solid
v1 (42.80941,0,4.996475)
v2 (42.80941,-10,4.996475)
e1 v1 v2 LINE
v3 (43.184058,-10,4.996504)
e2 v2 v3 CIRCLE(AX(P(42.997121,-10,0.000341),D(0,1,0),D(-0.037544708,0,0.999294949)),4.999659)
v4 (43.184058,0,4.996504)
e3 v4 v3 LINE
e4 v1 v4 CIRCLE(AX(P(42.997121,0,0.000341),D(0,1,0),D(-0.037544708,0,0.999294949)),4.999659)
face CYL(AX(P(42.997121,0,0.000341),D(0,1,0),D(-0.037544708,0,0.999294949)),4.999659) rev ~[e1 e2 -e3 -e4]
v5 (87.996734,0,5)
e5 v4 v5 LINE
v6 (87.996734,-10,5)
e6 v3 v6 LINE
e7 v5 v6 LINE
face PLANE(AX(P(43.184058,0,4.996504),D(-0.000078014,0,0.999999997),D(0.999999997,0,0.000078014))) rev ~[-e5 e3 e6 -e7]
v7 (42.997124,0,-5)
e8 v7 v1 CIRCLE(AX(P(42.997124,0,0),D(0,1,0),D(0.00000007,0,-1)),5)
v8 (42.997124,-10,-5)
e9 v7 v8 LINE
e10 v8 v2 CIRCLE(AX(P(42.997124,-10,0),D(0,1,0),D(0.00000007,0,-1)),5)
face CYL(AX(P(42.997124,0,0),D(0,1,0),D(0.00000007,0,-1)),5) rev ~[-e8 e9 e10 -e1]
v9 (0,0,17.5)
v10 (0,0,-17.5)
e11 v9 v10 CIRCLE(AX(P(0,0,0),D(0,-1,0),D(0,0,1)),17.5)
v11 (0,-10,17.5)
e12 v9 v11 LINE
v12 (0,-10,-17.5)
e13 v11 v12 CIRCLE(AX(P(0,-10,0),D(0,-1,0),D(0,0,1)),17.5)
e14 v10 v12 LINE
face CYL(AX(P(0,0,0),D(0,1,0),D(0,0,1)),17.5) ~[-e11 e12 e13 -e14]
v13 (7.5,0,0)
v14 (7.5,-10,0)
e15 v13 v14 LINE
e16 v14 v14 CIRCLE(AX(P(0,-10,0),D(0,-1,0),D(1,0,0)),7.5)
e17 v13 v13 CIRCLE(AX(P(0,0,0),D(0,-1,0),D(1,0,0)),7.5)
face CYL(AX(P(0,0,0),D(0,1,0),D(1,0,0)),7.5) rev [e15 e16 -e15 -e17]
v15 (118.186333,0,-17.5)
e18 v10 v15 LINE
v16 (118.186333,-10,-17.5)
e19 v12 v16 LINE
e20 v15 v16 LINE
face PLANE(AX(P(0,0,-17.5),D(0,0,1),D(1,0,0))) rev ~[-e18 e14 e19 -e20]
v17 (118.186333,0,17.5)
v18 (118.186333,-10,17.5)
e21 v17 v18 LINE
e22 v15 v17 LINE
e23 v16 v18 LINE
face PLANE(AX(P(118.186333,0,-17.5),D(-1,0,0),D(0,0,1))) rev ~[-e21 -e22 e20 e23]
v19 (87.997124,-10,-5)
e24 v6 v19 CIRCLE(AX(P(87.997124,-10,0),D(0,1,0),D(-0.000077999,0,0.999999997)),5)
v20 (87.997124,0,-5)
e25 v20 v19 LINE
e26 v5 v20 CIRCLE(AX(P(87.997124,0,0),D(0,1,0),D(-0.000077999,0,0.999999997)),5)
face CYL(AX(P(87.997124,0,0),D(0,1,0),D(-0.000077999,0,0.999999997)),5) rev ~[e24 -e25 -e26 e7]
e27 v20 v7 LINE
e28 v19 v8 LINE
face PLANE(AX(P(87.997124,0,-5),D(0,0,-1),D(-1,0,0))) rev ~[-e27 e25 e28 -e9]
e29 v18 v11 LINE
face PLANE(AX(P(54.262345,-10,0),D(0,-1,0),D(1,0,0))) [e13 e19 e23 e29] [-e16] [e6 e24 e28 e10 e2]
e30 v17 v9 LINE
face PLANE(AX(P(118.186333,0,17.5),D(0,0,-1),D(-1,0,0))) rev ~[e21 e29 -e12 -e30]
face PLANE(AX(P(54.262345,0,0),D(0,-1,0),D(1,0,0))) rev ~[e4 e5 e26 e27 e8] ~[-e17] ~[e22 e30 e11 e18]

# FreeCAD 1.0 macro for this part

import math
import FreeCAD as App
import Part
import Sketcher

V = App.Vector
Q = App.Units.Quantity

doc = App.newDocument("Part")
params = doc.addObject("Spreadsheet::Sheet", "Params")
for row, (alias, value) in enumerate([
    ("sketch1_diameter", "15 mm"),
    ("sketch1_radius", "5 mm"),
    ("sketch1_radius2", "17.5 mm"),
    ("sketch1_width", "45 mm"),
    ("pad1_length", "10 mm"),
], start=1):
    params.set(f"A{row}", alias)
    params.set(f"B{row}", "=" + value)
    params.setAlias(f"B{row}", alias)

body = doc.addObject("PartDesign::Body", "Body")

# Sketch on XZ plane
sketch1 = body.newObject("Sketcher::SketchObject", "Sketch")
sketch1.AttachmentSupport = (doc.getObject("XZ_Plane"), [""])
sketch1.MapMode = "FlatFace"
sketch1.addGeometry(Part.LineSegment(V(118.186333, 17.5, 0), V(0, 17.5, 0)), False)
sketch1.addGeometry(Part.ArcOfCircle(Part.Circle(V(0, 0, 0), V(0, 0, 1), 17.5), math.radians(90), math.radians(270)), False)
sketch1.addGeometry(Part.LineSegment(V(0, -17.5, 0), V(118.186333, -17.5, 0)), False)
sketch1.addGeometry(Part.LineSegment(V(118.186333, -17.5, 0), V(118.186333, 17.5, 0)), False)
sketch1.addGeometry(Part.Circle(V(0, 0, 0), V(0, 0, 1), 7.5), False)
sketch1.addGeometry(Part.ArcOfCircle(Part.Circle(V(42.997124, 0, 0), V(0, 0, 1), 5), math.radians(92.151546), math.radians(270.000004)), False)
sketch1.addGeometry(Part.ArcOfCircle(Part.Circle(V(42.997121, 0.000341, 0), V(0, 0, 1), 4.999659), math.radians(87.857211), math.radians(92.151659)), False)
sketch1.addGeometry(Part.LineSegment(V(43.184058, 4.996504, 0), V(87.996734, 5, 0)), False)
sketch1.addGeometry(Part.ArcOfCircle(Part.Circle(V(87.997124, 0, 0), V(0, 0, 1), 5), math.radians(-90), math.radians(90.004469)), False)
sketch1.addGeometry(Part.LineSegment(V(87.997124, -5, 0), V(42.997124, -5, 0)), False)
sketch1.addConstraint(Sketcher.Constraint("Coincident", 0, 2, 1, 1))
sketch1.addConstraint(Sketcher.Constraint("Coincident", 1, 2, 2, 1))
sketch1.addConstraint(Sketcher.Constraint("Coincident", 2, 2, 3, 1))
sketch1.addConstraint(Sketcher.Constraint("Coincident", 3, 2, 0, 1))
sketch1.addConstraint(Sketcher.Constraint("Coincident", 5, 1, 6, 2))
sketch1.addConstraint(Sketcher.Constraint("Coincident", 6, 1, 7, 1))
sketch1.addConstraint(Sketcher.Constraint("Coincident", 7, 2, 8, 2))
sketch1.addConstraint(Sketcher.Constraint("Coincident", 8, 1, 9, 1))
sketch1.addConstraint(Sketcher.Constraint("Coincident", 9, 2, 5, 2))
sketch1.addConstraint(Sketcher.Constraint("Horizontal", 0))
sketch1.addConstraint(Sketcher.Constraint("Horizontal", 2))
sketch1.addConstraint(Sketcher.Constraint("Vertical", 3))
sketch1.addConstraint(Sketcher.Constraint("Horizontal", 9))
sketch1.addConstraint(Sketcher.Constraint("Coincident", 1, 3, -1, 1))
sketch1.addConstraint(Sketcher.Constraint("Coincident", 4, 3, -1, 1))
sketch1.addConstraint(Sketcher.Constraint("PointOnObject", 5, 3, -1))
sketch1.addConstraint(Sketcher.Constraint("PointOnObject", 8, 3, -1))
sketch1.addConstraint(Sketcher.Constraint("PointOnObject", 0, 2, -2))
sketch1.addConstraint(Sketcher.Constraint("PointOnObject", 1, 2, -2))
sketch1.addConstraint(Sketcher.Constraint("Diameter", 4, Q("15 mm")))
sketch1.addConstraint(Sketcher.Constraint("Radius", 5, Q("5 mm")))
sketch1.addConstraint(Sketcher.Constraint("Radius", 1, Q("17.5 mm")))
sketch1.addConstraint(Sketcher.Constraint("DistanceX", 9, 2, 9, 1, Q("45 mm")))
sketch1.addConstraint(Sketcher.Constraint("DistanceX", 5, 3, 8, 3, Q("45 mm")))
sketch1.addConstraint(Sketcher.Constraint("DistanceX", 5, 3, 8, 1, Q("45 mm")))
sketch1.addConstraint(Sketcher.Constraint("Radius", 6, Q("4.999659 mm")))
sketch1.addConstraint(Sketcher.Constraint("DistanceX", 7, 2, 3, 2, Q("30.189599 mm")))
sketch1.addConstraint(Sketcher.Constraint("DistanceX", 0, 2, 0, 1, Q("118.186333 mm")))
sketch1.addConstraint(Sketcher.Constraint("DistanceX", -1, 1, 6, 3, Q("42.997121 mm")))
sketch1.addConstraint(Sketcher.Constraint("DistanceY", -1, 1, 6, 3, Q("0.000341 mm")))
sketch1.addConstraint(Sketcher.Constraint("DistanceX", -1, 1, 5, 1, Q("42.80941 mm")))
sketch1.addConstraint(Sketcher.Constraint("Distance", 7, Q("44.812676 mm")))
sketch1.setExpression("Constraints[19]", "Params.sketch1_diameter")
sketch1.setExpression("Constraints[20]", "Params.sketch1_radius")
sketch1.setExpression("Constraints[21]", "Params.sketch1_radius2")
sketch1.setExpression("Constraints[22]", "Params.sketch1_width")
pad1 = body.newObject("PartDesign::Pad", "Pad")
pad1.Profile = sketch1
pad1.setExpression("Length", "Params.pad1_length")

doc.recompute()
